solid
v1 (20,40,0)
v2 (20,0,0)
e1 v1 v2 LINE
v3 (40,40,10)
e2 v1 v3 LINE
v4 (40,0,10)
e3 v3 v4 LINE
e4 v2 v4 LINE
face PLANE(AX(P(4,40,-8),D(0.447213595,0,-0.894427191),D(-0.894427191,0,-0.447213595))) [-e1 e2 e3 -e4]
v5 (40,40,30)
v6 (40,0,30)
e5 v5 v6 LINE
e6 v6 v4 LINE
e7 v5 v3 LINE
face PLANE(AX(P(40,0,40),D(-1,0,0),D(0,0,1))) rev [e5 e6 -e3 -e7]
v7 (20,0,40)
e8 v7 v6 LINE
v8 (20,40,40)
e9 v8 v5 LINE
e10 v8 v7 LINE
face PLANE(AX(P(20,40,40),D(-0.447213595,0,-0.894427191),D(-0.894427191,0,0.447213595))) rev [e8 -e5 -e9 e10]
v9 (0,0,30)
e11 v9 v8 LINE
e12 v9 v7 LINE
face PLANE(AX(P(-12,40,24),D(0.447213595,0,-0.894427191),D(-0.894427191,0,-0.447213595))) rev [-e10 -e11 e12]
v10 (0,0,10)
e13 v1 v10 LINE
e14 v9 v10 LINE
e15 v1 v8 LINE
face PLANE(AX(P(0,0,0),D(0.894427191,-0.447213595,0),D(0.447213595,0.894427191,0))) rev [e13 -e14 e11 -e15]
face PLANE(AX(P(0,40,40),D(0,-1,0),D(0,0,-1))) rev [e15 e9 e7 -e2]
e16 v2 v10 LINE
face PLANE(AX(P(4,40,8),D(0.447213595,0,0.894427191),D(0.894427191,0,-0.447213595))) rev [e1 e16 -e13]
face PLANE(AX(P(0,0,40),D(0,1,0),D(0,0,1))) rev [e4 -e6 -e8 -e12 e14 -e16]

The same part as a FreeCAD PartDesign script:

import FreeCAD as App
import Part
import Sketcher
from FreeCAD import Vector
Q = App.Units.Quantity

doc = App.newDocument("Part")
body = doc.addObject("PartDesign::Body", "Body")

sketch1 = doc.addObject("Sketcher::SketchObject", "Sketch")
body.addObject(sketch1)
sketch1.AttachmentSupport = (doc.XY_Plane, [""])
sketch1.MapMode = "FlatFace"
sketch1.addGeometry([
    Part.LineSegment(Vector(0, 40, 0), Vector(0, 0, 0)),
    Part.LineSegment(Vector(0, 0, 0), Vector(40, 0, 0)),
    Part.LineSegment(Vector(40, 0, 0), Vector(40, 40, 0)),
    Part.LineSegment(Vector(40, 40, 0), Vector(0, 40, 0)),
], False)
sketch1.addConstraint([
    Sketcher.Constraint("Coincident", 0, 2, 1, 1),
    Sketcher.Constraint("Coincident", 1, 2, 2, 1),
    Sketcher.Constraint("Coincident", 2, 2, 3, 1),
    Sketcher.Constraint("Coincident", 3, 2, 0, 1),
    Sketcher.Constraint("Vertical", 0),
    Sketcher.Constraint("Horizontal", 1),
    Sketcher.Constraint("Vertical", 2),
    Sketcher.Constraint("Horizontal", 3),
    Sketcher.Constraint("Coincident", 0, 2, -1, 1),
    Sketcher.Constraint("Equal", 3, 0),
    Sketcher.Constraint("DistanceX", 1, 1, 1, 2, Q("40 mm")),
])
pad1 = doc.addObject("PartDesign::Pad", "Pad")
body.addObject(pad1)
pad1.Profile = sketch1
pad1.Length = 40

sketch2 = doc.addObject("Sketcher::SketchObject", "Sketch001")
body.addObject(sketch2)
sketch2.AttachmentSupport = (doc.XY_Plane, [""])
sketch2.MapMode = "FlatFace"
sketch2.AttachmentOffset = App.Placement(Vector(0, 0, 40), App.Rotation())
sketch2.addGeometry([
    Part.LineSegment(Vector(0, 0, 0), Vector(20, 40, 0)),
    Part.LineSegment(Vector(20, 40, 0), Vector(0, 40, 0)),
    Part.LineSegment(Vector(0, 40, 0), Vector(0, 0, 0)),
], False)
sketch2.addConstraint([
    Sketcher.Constraint("Coincident", 0, 2, 1, 1),
    Sketcher.Constraint("Coincident", 1, 2, 2, 1),
    Sketcher.Constraint("Coincident", 2, 2, 0, 1),
    Sketcher.Constraint("Horizontal", 1),
    Sketcher.Constraint("Vertical", 2),
    Sketcher.Constraint("Coincident", 2, 2, -1, 1),
    Sketcher.Constraint("DistanceX", 1, 2, 1, 1, Q("20 mm")),
    Sketcher.Constraint("DistanceY", 2, 2, 2, 1, Q("40 mm")),
])
pocket1 = doc.addObject("PartDesign::Pocket", "Pocket")
body.addObject(pocket1)
pocket1.Profile = sketch2
pocket1.Length = 40

sketch3 = doc.addObject("Sketcher::SketchObject", "Sketch002")
body.addObject(sketch3)
sketch3.AttachmentSupport = (doc.XZ_Plane, [""])
sketch3.MapMode = "FlatFace"
sketch3.addGeometry([
    Part.LineSegment(Vector(0, 40, 0), Vector(0, 30, 0)),
    Part.LineSegment(Vector(0, 30, 0), Vector(20, 40, 0)),
    Part.LineSegment(Vector(20, 40, 0), Vector(0, 40, 0)),
    Part.LineSegment(Vector(0, 0, 0), Vector(20, 0, 0)),
    Part.LineSegment(Vector(20, 0, 0), Vector(0, 10, 0)),
    Part.LineSegment(Vector(0, 10, 0), Vector(0, 0, 0)),
    Part.LineSegment(Vector(20, 40, 0), Vector(40, 30, 0)),
    Part.LineSegment(Vector(40, 30, 0), Vector(40, 40, 0)),
    Part.LineSegment(Vector(40, 40, 0), Vector(20, 40, 0)),
    Part.LineSegment(Vector(40, 10, 0), Vector(20, 0, 0)),
    Part.LineSegment(Vector(20, 0, 0), Vector(40, 0, 0)),
    Part.LineSegment(Vector(40, 0, 0), Vector(40, 10, 0)),
], False)
sketch3.addConstraint([
    Sketcher.Constraint("Coincident", 0, 2, 1, 1),
    Sketcher.Constraint("Coincident", 1, 2, 2, 1),
    Sketcher.Constraint("Coincident", 2, 2, 0, 1),
    Sketcher.Constraint("Coincident", 3, 2, 4, 1),
    Sketcher.Constraint("Coincident", 4, 2, 5, 1),
    Sketcher.Constraint("Coincident", 5, 2, 3, 1),
    Sketcher.Constraint("Coincident", 6, 2, 7, 1),
    Sketcher.Constraint("Coincident", 7, 2, 8, 1),
    Sketcher.Constraint("Coincident", 8, 2, 6, 1),
    Sketcher.Constraint("Coincident", 9, 2, 10, 1),
    Sketcher.Constraint("Coincident", 10, 2, 11, 1),
    Sketcher.Constraint("Coincident", 11, 2, 9, 1),
    Sketcher.Constraint("Vertical", 0),
    Sketcher.Constraint("Horizontal", 2),
    Sketcher.Constraint("Horizontal", 3),
    Sketcher.Constraint("Vertical", 5),
    Sketcher.Constraint("Vertical", 7),
    Sketcher.Constraint("Horizontal", 8),
    Sketcher.Constraint("Horizontal", 10),
    Sketcher.Constraint("Vertical", 11),
    Sketcher.Constraint("Coincident", 5, 2, -1, 1),
    Sketcher.Constraint("Coincident", 8, 2, 1, 2),
    Sketcher.Constraint("Coincident", 9, 2, 3, 2),
    Sketcher.Constraint("PointOnObject", 0, 2, -2),
    Sketcher.Constraint("Parallel", 4, 6),
    Sketcher.Constraint("Parallel", 1, 9),
    Sketcher.Constraint("Horizontal", 0, 2, 6, 2),
    Sketcher.Constraint("Horizontal", 4, 2, 11, 2),
    Sketcher.Constraint("Vertical", 1, 2, 3, 2),
    Sketcher.Constraint("Vertical", 7, 2, 10, 2),
    Sketcher.Constraint("DistanceX", 2, 2, 2, 1, Q("20 mm")),
    Sketcher.Constraint("DistanceY", 0, 2, 0, 1, Q("10 mm")),
    Sketcher.Constraint("DistanceY", -1, 1, 0, 2, Q("30 mm")),
])
pocket2 = doc.addObject("PartDesign::Pocket", "Pocket001")
body.addObject(pocket2)
pocket2.Profile = sketch3
pocket2.Length = 40

doc.recompute()
